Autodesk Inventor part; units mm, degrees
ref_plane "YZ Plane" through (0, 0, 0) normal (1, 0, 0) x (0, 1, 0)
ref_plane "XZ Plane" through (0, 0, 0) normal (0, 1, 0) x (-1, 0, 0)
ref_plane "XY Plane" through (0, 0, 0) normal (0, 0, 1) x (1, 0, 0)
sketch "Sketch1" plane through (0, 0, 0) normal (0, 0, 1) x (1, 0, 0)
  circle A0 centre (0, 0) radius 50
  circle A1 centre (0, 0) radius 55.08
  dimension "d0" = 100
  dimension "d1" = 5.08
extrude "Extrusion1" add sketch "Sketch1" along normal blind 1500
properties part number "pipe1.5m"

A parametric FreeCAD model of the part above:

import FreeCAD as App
import Part
import Sketcher

V = App.Vector
Q = App.Units.Quantity

doc = App.newDocument("Part")
params = doc.addObject("Spreadsheet::Sheet", "Params")
for row, (alias, value) in enumerate([
    ("sketch1_diameter", "3.937 in"),
    ("sketch1_diameter2", "4.337 in"),
    ("pad1_length", "1500 mm"),
], start=1):
    params.set(f"A{row}", alias)
    params.set(f"B{row}", "=" + value)
    params.setAlias(f"B{row}", alias)

body = doc.addObject("PartDesign::Body", "Body")

# Sketch on XY plane
sketch1 = body.newObject("Sketcher::SketchObject", "Sketch")
sketch1.AttachmentSupport = (doc.getObject("XY_Plane"), [""])
sketch1.MapMode = "FlatFace"
sketch1.addGeometry(Part.Circle(V(0, 0, 0), V(0, 0, 1), 55.08), False)
sketch1.addGeometry(Part.Circle(V(0, 0, 0), V(0, 0, 1), 50), False)
sketch1.addConstraint(Sketcher.Constraint("Coincident", 0, 3, -1, 1))
sketch1.addConstraint(Sketcher.Constraint("Coincident", 1, 3, -1, 1))
sketch1.addConstraint(Sketcher.Constraint("Diameter", 1, Q("3.937 in")))
sketch1.addConstraint(Sketcher.Constraint("Diameter", 0, Q("4.337 in")))
sketch1.setExpression("Constraints[2]", "Params.sketch1_diameter")
sketch1.setExpression("Constraints[3]", "Params.sketch1_diameter2")
pad1 = body.newObject("PartDesign::Pad", "Pad")
pad1.Profile = sketch1
pad1.setExpression("Length", "Params.pad1_length")

doc.recompute()
